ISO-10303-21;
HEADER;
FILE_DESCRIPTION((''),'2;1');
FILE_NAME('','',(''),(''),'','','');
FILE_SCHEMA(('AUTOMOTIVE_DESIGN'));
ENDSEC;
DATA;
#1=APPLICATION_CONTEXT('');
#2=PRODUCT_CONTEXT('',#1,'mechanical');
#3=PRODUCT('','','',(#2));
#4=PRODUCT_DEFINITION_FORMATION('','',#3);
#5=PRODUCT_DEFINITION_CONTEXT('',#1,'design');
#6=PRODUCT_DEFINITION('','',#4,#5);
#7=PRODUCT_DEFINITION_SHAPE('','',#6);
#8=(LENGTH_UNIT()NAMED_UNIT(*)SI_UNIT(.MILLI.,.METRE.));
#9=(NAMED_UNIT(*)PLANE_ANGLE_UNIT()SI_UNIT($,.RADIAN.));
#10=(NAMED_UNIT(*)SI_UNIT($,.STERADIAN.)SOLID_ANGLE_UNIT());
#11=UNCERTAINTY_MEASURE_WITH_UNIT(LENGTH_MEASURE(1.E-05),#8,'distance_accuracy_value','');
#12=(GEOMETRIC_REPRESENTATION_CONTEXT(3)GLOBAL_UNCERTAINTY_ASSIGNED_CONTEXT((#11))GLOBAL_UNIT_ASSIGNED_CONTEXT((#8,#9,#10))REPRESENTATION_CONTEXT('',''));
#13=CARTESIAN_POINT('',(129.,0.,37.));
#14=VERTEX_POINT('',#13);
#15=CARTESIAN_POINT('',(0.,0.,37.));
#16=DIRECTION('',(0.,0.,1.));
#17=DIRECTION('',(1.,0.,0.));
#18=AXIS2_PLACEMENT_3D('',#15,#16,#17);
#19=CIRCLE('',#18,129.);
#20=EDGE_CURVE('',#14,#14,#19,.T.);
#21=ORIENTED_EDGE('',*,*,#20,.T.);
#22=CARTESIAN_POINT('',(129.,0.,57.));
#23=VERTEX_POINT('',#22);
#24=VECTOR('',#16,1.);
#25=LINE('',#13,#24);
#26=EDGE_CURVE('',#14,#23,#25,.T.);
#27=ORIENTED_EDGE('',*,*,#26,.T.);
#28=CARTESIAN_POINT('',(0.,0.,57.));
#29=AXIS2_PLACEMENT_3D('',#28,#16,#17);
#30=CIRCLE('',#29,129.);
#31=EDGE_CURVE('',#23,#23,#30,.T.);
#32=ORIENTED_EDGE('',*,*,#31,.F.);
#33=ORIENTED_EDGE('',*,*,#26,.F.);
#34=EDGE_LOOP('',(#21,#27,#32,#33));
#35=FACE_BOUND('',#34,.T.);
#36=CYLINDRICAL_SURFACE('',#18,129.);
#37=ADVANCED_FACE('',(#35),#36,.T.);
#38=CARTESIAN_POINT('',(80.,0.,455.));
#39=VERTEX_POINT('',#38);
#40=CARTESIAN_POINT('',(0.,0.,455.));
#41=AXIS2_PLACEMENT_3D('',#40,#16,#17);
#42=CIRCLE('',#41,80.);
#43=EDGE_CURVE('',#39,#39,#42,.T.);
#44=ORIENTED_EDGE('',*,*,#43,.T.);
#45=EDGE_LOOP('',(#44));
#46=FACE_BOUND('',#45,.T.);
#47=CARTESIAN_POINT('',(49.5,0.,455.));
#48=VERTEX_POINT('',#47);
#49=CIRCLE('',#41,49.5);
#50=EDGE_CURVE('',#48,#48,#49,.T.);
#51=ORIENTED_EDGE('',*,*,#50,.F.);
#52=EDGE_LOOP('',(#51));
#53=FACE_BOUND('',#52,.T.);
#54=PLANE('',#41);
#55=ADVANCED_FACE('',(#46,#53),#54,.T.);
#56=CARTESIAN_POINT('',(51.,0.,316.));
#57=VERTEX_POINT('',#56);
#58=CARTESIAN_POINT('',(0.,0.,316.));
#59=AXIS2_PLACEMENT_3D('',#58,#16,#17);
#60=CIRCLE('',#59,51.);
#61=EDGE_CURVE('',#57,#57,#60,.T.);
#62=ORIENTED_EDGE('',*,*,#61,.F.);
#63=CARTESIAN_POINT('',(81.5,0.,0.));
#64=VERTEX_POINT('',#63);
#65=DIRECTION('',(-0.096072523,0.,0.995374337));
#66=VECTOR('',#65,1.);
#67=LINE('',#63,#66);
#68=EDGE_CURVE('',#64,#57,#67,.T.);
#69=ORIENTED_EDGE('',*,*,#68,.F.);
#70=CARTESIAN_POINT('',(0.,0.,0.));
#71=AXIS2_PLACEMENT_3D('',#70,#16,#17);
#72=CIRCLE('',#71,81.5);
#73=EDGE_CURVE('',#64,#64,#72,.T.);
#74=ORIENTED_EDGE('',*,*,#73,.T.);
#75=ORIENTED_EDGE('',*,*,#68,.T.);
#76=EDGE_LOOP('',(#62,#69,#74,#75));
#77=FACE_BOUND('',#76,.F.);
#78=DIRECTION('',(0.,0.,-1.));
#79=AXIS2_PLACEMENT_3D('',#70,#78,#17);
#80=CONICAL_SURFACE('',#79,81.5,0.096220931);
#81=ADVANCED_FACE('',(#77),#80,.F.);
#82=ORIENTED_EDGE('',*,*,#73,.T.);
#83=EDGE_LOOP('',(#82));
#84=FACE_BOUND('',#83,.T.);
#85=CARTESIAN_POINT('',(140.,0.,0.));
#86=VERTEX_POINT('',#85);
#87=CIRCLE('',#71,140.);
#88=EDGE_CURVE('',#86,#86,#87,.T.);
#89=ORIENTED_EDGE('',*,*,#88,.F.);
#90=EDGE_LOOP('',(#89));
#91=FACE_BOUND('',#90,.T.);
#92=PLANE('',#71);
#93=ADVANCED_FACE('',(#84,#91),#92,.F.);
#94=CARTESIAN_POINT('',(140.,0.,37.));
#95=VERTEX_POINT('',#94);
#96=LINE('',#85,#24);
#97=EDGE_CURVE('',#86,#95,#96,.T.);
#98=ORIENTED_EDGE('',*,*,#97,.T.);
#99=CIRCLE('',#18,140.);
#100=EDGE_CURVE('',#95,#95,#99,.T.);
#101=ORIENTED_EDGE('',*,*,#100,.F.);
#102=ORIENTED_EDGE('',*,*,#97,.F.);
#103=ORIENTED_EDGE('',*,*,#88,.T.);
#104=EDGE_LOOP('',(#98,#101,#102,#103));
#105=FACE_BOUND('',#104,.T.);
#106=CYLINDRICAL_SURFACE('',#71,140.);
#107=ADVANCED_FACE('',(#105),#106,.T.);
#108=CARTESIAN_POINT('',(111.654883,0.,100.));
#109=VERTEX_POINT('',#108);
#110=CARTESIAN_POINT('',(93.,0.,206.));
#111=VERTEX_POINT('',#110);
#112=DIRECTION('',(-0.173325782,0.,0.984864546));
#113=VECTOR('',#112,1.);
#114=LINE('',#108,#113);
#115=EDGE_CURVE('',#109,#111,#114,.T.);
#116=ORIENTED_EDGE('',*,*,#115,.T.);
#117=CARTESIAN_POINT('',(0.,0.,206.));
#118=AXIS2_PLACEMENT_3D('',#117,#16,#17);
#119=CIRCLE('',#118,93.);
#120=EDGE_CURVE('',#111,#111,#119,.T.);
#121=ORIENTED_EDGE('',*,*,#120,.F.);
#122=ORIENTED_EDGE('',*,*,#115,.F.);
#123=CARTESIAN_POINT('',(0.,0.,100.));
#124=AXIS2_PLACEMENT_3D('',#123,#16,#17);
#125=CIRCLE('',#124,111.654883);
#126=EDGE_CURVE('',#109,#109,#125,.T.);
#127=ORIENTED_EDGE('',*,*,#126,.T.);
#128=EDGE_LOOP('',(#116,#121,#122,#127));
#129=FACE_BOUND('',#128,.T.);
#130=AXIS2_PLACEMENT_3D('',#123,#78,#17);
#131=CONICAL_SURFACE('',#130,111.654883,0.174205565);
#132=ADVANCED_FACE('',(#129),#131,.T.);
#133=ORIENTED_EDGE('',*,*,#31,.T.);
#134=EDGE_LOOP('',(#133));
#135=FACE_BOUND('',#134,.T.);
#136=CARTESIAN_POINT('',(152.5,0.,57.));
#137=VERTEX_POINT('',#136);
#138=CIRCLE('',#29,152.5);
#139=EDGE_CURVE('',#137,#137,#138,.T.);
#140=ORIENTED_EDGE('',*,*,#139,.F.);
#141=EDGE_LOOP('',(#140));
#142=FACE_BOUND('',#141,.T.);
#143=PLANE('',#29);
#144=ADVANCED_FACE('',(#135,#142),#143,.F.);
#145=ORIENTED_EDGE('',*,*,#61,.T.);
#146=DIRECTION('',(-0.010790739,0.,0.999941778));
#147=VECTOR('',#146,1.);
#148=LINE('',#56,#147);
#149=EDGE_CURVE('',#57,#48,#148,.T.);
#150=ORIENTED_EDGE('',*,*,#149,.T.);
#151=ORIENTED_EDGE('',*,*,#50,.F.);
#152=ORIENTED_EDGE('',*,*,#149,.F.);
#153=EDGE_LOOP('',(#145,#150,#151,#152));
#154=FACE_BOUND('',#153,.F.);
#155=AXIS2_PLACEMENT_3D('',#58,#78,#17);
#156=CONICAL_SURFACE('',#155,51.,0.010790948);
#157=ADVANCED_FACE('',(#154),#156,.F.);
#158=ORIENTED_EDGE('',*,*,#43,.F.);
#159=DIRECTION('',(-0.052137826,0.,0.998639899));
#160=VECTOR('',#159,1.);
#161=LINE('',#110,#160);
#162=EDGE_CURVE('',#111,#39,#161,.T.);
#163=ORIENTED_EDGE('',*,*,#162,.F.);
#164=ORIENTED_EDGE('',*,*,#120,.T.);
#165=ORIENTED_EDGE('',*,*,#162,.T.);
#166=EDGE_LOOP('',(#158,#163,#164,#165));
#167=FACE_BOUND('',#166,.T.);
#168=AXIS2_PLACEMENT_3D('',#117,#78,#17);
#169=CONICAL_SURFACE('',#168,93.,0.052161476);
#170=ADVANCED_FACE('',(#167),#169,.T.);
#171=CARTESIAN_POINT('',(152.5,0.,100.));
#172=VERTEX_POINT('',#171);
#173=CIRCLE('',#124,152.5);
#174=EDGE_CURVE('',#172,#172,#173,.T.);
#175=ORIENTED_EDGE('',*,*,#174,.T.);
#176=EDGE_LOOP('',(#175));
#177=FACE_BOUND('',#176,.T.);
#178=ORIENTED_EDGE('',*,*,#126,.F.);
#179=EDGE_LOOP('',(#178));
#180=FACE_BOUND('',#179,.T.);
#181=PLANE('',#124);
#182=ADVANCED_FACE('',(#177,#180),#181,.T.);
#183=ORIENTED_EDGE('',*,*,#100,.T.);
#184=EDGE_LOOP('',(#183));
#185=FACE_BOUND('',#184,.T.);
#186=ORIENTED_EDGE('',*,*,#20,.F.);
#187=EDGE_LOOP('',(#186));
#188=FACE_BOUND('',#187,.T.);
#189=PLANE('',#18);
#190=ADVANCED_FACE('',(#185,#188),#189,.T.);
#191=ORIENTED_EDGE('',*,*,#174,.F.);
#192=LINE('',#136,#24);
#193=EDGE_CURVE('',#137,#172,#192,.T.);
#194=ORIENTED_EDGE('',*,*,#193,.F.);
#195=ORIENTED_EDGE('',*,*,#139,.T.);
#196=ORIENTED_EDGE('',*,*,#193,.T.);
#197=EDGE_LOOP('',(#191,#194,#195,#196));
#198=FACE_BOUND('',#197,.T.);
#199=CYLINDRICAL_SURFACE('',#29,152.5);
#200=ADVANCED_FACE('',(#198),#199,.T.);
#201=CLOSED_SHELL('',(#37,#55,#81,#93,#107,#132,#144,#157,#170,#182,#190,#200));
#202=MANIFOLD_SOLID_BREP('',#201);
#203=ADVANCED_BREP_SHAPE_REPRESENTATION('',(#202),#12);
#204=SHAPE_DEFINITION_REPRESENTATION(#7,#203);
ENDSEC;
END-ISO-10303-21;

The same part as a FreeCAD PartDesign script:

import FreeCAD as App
import Part
import Sketcher


def add_polygon(sketch, points):
    """Adds a closed chain of lines whose ends are joined by coincident constraints."""
    first, n = sketch.GeometryCount, len(points)
    for a, b in zip(points, points[1:] + points[:1]):
        sketch.addGeometry(Part.LineSegment(App.Vector(*a, 0), App.Vector(*b, 0)), False)
    for i in range(n):
        sketch.addConstraint(Sketcher.Constraint("Coincident", first + i, 2, first + (i + 1) % n, 1))

doc = App.newDocument("Part")
body = doc.addObject("PartDesign::Body", "Body")

# Sketch on XZ plane
sketch1 = body.newObject("Sketcher::SketchObject", "Sketch")
sketch1.AttachmentSupport = (doc.getObject("XZ_Plane"), [""])
sketch1.MapMode = "FlatFace"
add_polygon(sketch1, [(80, 455), (0, 455), (0, 0), (140, 0), (140, 37), (129, 37), (129, 57), (152.5, 57), (152.5, 100), (111.654883, 100), (93, 206)])  # lines 0-10
sketch1.addConstraint([
    Sketcher.Constraint("Horizontal", 0),
    Sketcher.Constraint("Vertical", 1),
    Sketcher.Constraint("Horizontal", 2),
    Sketcher.Constraint("Vertical", 3),
    Sketcher.Constraint("Horizontal", 4),
    Sketcher.Constraint("Vertical", 5),
    Sketcher.Constraint("Horizontal", 6),
    Sketcher.Constraint("Vertical", 7),
    Sketcher.Constraint("Horizontal", 8),
    Sketcher.Constraint("Coincident", 1, 2, -1, 1),
    Sketcher.Constraint("DistanceX", 0, 2, 0, 1, 80.0),
    Sketcher.Constraint("DistanceX", 2, 1, 2, 2, 140.0),
    Sketcher.Constraint("DistanceX", 4, 2, 4, 1, 11.0),
    Sketcher.Constraint("DistanceY", 1, 2, 1, 1, 455.0),
    Sketcher.Constraint("DistanceY", 3, 1, 3, 2, 37.0),
    Sketcher.Constraint("DistanceY", 5, 1, 5, 2, 20.0),
    Sketcher.Constraint("DistanceY", 7, 1, 7, 2, 43.0),
    Sketcher.Constraint("DistanceX", 6, 1, 6, 2, 23.5),
    Sketcher.Constraint("DistanceX", -1, 1, 9, 2, 93.0),
    Sketcher.Constraint("DistanceY", -1, 1, 9, 2, 206.0),
    Sketcher.Constraint("DistanceX", 8, 2, 8, 1, 40.845117),
])
revolution = body.newObject("PartDesign::Revolution", "Revolution")
revolution.Profile = sketch1
revolution.ReferenceAxis = (sketch1, ["V_Axis"])
revolution.Angle = 360

# Sketch on XZ plane
sketch2 = body.newObject("Sketcher::SketchObject", "Sketch001")
sketch2.AttachmentSupport = (doc.getObject("XZ_Plane"), [""])
sketch2.MapMode = "FlatFace"
add_polygon(sketch2, [(49.5, 455), (0, 455), (0, 0), (81.5, 0), (51, 316)])  # lines 0-4
sketch2.addConstraint([
    Sketcher.Constraint("Horizontal", 0),
    Sketcher.Constraint("Vertical", 1),
    Sketcher.Constraint("Horizontal", 2),
    Sketcher.Constraint("Coincident", 1, 2, -1, 1),
    Sketcher.Constraint("DistanceY", 1, 2, 1, 1, 455.0),
    Sketcher.Constraint("DistanceX", 0, 2, 0, 1, 49.5),
    Sketcher.Constraint("DistanceX", 2, 1, 2, 2, 81.5),
    Sketcher.Constraint("DistanceX", -1, 1, 3, 2, 51.0),
    Sketcher.Constraint("DistanceY", -1, 1, 3, 2, 316.0),
])
groove = body.newObject("PartDesign::Groove", "Groove")
groove.Profile = sketch2
groove.ReferenceAxis = (sketch2, ["V_Axis"])
groove.Angle = 360

doc.recompute()
